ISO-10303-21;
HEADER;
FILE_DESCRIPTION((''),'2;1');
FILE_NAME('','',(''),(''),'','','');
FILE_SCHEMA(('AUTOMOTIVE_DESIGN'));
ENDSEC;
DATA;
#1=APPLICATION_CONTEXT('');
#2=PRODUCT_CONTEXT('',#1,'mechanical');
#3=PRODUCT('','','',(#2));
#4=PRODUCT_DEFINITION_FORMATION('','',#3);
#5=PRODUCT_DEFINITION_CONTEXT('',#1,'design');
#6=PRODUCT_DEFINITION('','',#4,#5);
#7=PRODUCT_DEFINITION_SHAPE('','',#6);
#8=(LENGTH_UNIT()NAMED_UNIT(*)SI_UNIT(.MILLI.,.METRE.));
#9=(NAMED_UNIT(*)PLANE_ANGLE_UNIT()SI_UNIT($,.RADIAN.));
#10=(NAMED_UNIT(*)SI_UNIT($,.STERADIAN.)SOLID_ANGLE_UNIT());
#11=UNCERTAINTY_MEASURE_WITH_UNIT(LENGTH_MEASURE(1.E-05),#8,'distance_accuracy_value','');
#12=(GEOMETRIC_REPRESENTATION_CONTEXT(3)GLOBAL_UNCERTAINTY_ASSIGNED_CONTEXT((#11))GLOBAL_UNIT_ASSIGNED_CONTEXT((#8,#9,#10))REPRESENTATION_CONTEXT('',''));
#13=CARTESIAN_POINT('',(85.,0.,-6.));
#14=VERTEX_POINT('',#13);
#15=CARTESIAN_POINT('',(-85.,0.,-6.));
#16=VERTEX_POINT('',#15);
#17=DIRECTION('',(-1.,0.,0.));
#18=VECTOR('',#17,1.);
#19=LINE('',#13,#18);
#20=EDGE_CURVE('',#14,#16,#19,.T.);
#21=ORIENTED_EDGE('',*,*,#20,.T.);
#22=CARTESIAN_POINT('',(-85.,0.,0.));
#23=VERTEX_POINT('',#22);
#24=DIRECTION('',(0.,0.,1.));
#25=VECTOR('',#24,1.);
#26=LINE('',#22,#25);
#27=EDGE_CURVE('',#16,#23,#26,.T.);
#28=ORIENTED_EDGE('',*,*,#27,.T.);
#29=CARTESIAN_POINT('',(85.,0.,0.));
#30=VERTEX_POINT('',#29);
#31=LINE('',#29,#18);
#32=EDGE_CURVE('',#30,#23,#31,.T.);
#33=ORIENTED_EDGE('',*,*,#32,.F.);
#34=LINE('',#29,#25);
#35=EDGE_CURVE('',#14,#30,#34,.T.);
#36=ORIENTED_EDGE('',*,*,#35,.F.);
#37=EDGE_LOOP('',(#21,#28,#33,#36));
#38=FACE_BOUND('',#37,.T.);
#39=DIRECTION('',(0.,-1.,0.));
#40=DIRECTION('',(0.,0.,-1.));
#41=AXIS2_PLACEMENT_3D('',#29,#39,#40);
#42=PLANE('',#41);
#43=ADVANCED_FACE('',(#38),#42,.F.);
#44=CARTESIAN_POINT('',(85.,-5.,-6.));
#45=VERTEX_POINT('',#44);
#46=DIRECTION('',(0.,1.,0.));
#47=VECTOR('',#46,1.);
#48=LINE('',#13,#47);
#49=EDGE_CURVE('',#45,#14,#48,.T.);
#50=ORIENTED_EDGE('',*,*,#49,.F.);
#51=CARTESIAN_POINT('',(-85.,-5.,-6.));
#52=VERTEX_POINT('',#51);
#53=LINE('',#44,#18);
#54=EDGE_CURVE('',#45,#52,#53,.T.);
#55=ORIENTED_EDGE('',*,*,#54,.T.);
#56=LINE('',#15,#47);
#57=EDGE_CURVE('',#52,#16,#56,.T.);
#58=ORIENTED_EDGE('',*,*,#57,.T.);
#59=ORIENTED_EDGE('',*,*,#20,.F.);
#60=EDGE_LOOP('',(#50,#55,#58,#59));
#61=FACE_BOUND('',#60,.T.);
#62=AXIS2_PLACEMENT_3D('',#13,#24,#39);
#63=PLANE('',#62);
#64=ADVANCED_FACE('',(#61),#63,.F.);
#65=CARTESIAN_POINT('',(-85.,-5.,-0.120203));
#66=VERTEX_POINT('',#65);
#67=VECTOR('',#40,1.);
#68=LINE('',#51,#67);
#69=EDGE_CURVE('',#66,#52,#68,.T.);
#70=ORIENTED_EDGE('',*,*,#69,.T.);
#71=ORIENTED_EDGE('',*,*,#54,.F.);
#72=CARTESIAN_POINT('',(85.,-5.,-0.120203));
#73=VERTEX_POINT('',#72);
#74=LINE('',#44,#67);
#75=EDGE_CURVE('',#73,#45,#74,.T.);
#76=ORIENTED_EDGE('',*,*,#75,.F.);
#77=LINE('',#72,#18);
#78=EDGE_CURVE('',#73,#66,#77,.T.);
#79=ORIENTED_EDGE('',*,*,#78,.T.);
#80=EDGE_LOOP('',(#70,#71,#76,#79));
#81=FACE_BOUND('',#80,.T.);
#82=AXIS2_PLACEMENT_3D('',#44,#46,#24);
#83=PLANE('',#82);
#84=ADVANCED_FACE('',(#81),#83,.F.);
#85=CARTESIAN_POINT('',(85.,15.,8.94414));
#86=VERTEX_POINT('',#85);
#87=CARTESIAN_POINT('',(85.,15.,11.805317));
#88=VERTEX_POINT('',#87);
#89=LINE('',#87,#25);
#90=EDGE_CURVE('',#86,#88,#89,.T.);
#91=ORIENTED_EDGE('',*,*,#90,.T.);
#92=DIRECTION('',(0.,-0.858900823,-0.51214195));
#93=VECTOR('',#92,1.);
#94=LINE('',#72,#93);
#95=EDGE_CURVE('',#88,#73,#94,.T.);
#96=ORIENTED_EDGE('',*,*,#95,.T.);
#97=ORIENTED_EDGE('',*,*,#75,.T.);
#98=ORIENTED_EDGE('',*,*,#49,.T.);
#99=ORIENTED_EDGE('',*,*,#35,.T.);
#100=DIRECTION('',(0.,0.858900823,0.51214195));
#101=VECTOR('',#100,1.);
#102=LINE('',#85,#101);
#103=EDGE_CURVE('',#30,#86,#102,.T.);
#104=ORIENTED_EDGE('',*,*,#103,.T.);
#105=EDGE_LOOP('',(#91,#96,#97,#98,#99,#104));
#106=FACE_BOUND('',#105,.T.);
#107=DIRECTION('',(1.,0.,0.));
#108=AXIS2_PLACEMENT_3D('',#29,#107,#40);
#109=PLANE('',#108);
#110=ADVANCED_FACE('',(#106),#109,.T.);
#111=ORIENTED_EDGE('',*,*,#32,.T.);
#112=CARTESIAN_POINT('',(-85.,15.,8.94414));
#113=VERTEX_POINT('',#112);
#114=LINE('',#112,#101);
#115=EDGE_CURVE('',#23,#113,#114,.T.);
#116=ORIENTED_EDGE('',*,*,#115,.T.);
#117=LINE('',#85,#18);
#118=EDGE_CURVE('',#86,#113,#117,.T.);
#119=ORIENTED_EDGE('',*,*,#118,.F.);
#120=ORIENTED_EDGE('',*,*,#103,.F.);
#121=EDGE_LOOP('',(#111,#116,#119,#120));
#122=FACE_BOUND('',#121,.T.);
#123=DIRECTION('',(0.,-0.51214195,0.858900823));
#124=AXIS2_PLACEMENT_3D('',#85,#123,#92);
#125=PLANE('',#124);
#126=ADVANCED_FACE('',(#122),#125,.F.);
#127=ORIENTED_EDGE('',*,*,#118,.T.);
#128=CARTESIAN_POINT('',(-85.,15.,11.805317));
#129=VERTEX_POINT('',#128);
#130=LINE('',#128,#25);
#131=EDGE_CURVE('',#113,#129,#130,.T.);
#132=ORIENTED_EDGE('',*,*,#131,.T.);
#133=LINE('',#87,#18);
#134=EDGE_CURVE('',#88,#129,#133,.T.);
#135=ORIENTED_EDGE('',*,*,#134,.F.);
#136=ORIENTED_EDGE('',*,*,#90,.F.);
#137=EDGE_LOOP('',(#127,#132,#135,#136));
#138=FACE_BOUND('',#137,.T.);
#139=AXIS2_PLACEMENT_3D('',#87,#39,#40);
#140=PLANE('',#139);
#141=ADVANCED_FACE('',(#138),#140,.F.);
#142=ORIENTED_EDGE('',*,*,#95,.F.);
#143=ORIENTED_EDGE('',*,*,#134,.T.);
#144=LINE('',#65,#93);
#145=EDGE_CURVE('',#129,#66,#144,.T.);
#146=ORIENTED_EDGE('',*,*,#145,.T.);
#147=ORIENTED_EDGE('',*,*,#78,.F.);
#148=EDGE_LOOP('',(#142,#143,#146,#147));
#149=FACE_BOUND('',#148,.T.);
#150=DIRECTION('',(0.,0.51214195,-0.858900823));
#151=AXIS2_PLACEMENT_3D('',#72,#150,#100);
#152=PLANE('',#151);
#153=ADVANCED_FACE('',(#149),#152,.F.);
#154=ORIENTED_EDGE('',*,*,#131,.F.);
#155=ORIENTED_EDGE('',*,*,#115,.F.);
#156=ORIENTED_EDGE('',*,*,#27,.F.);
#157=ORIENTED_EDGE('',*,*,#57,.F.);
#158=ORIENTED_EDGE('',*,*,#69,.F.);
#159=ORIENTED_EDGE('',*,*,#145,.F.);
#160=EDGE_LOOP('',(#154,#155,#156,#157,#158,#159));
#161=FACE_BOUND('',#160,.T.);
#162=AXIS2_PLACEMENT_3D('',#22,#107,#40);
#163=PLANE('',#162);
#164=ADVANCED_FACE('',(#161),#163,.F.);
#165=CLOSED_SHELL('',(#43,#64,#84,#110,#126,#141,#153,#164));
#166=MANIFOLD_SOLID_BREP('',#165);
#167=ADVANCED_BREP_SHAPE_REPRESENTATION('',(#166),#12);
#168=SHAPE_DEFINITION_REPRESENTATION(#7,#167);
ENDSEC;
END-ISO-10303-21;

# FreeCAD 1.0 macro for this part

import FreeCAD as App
import Part
import Sketcher
from FreeCAD import Vector
Q = App.Units.Quantity


def add_polygon(sketch, points):
    """Adds a closed chain of lines whose ends are joined by coincident constraints."""
    first, n = sketch.GeometryCount, len(points)
    for a, b in zip(points, points[1:] + points[:1]):
        sketch.addGeometry(Part.LineSegment(App.Vector(*a, 0), App.Vector(*b, 0)), False)
    for i in range(n):
        sketch.addConstraint(Sketcher.Constraint("Coincident", first + i, 2, first + (i + 1) % n, 1))

doc = App.newDocument("Part")
params = doc.addObject("Spreadsheet::Sheet", "Params")
for row, (alias, value) in enumerate([
    ("sketch1_width", "5 mm"),
    ("sketch1_height", "6 mm"),
    ("pad1_length", "170 mm"),
], start=1):
    params.set(f"A{row}", alias)
    params.set(f"B{row}", "=" + value)
    params.setAlias(f"B{row}", alias)

body = doc.addObject("PartDesign::Body", "Body")

sketch1 = doc.addObject("Sketcher::SketchObject", "Sketch")
body.addObject(sketch1)
sketch1.AttachmentSupport = (doc.YZ_Plane, [""])
sketch1.MapMode = "FlatFace"
add_polygon(sketch1, [(0, -6), (0, 0), (15, 8.9), (15, 11.8), (-5, -0.1), (-5, -6)])
sketch1.addConstraint(Sketcher.Constraint("Vertical", 0))
sketch1.addConstraint(Sketcher.Constraint("Vertical", 2))
sketch1.addConstraint(Sketcher.Constraint("Vertical", 4))
sketch1.addConstraint(Sketcher.Constraint("Horizontal", 5))
sketch1.addConstraint(Sketcher.Constraint("Coincident", 0, 2, -1, 1))
sketch1.addConstraint(Sketcher.Constraint("Parallel", 1, 3))
sketch1.addConstraint(Sketcher.Constraint("DistanceX", 5, 1, 5, 2, Q("5 mm")))
sketch1.addConstraint(Sketcher.Constraint("DistanceY", 0, 1, 0, 2, Q("6 mm")))
sketch1.addConstraint(Sketcher.Constraint("DistanceX", -1, 1, 1, 2, Q("15 mm")))
sketch1.addConstraint(Sketcher.Constraint("Distance", 1, Q("17.464182 mm")))
sketch1.addConstraint(Sketcher.Constraint("DistanceY", 2, 1, 2, 2, Q("2.861177 mm")))
sketch1.setExpression("Constraints[12]", "Params.sketch1_width")
sketch1.setExpression("Constraints[13]", "Params.sketch1_height")
pad1 = doc.addObject("PartDesign::Pad", "Pad")
body.addObject(pad1)
pad1.Profile = sketch1
pad1.setExpression("Length", "Params.pad1_length")
pad1.Midplane = True

doc.recompute()
